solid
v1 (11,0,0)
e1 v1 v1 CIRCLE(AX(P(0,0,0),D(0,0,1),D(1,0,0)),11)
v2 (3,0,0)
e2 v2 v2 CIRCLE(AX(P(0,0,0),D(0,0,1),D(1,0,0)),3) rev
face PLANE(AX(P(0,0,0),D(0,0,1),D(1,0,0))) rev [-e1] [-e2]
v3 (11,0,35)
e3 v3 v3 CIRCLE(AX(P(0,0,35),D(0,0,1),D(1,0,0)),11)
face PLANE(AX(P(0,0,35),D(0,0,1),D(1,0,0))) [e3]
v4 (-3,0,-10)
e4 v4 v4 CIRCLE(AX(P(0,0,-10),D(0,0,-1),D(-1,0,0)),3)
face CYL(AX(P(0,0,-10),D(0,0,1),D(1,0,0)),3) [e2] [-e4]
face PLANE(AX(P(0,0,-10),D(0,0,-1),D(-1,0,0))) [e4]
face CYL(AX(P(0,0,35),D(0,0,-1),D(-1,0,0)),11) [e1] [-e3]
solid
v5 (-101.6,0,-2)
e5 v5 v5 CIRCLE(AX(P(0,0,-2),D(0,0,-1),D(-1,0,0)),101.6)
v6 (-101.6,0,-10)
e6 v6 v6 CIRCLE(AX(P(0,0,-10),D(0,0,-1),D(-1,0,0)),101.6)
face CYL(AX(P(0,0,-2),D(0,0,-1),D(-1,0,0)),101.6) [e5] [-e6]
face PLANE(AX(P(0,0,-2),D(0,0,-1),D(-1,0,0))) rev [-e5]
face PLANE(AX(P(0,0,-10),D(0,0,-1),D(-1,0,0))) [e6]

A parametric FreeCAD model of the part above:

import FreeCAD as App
import Part
import Sketcher

V = App.Vector

doc = App.newDocument("Part")
body = doc.addObject("PartDesign::Body", "Body")

# Sketch on XY plane
sketch1 = body.newObject("Sketcher::SketchObject", "Sketch")
sketch1.AttachmentSupport = (doc.getObject("XY_Plane"), [""])
sketch1.MapMode = "FlatFace"
sketch1.addGeometry(Part.Circle(V(0, 0, 0), V(0, 0, 1), 11), False)
sketch1.addConstraint([
    Sketcher.Constraint("Coincident", 0, 3, -1, 1),
    Sketcher.Constraint("Diameter", 0, 22.0),
])
pad1 = body.newObject("PartDesign::Pad", "Pad")
pad1.Profile = sketch1
pad1.Length = 35

# Sketch on XY plane
sketch2 = body.newObject("Sketcher::SketchObject", "Sketch001")
sketch2.AttachmentSupport = (doc.getObject("XY_Plane"), [""])
sketch2.MapMode = "FlatFace"
sketch2.addGeometry(Part.Circle(V(0, 0, 0), V(0, 0, 1), 3), False)
sketch2.addConstraint([
    Sketcher.Constraint("Coincident", 0, 3, -1, 1),
    Sketcher.Constraint("Diameter", 0, 6.0),
])
pad2 = body.newObject("PartDesign::Pad", "Pad001")
pad2.Profile = sketch2
pad2.Length = 10
pad2.Reversed = True
body2 = doc.addObject("PartDesign::Body", "Body001")

# Sketch on XY plane
sketch3 = body2.newObject("Sketcher::SketchObject", "Sketch002")
sketch3.AttachmentSupport = (doc.getObject("XY_Plane001"), [""])
sketch3.MapMode = "FlatFace"
sketch3.AttachmentOffset = App.Placement(V(0, 0, -10), App.Rotation())
sketch3.addGeometry(Part.Circle(V(0, 0, 0), V(0, 0, 1), 102), False)
sketch3.addConstraint([
    Sketcher.Constraint("Coincident", 0, 3, -1, 1),
    Sketcher.Constraint("Diameter", 0, 203.2),
])
pad3 = body2.newObject("PartDesign::Pad", "Pad002")
pad3.Profile = sketch3
pad3.Length = 8

doc.recompute()
